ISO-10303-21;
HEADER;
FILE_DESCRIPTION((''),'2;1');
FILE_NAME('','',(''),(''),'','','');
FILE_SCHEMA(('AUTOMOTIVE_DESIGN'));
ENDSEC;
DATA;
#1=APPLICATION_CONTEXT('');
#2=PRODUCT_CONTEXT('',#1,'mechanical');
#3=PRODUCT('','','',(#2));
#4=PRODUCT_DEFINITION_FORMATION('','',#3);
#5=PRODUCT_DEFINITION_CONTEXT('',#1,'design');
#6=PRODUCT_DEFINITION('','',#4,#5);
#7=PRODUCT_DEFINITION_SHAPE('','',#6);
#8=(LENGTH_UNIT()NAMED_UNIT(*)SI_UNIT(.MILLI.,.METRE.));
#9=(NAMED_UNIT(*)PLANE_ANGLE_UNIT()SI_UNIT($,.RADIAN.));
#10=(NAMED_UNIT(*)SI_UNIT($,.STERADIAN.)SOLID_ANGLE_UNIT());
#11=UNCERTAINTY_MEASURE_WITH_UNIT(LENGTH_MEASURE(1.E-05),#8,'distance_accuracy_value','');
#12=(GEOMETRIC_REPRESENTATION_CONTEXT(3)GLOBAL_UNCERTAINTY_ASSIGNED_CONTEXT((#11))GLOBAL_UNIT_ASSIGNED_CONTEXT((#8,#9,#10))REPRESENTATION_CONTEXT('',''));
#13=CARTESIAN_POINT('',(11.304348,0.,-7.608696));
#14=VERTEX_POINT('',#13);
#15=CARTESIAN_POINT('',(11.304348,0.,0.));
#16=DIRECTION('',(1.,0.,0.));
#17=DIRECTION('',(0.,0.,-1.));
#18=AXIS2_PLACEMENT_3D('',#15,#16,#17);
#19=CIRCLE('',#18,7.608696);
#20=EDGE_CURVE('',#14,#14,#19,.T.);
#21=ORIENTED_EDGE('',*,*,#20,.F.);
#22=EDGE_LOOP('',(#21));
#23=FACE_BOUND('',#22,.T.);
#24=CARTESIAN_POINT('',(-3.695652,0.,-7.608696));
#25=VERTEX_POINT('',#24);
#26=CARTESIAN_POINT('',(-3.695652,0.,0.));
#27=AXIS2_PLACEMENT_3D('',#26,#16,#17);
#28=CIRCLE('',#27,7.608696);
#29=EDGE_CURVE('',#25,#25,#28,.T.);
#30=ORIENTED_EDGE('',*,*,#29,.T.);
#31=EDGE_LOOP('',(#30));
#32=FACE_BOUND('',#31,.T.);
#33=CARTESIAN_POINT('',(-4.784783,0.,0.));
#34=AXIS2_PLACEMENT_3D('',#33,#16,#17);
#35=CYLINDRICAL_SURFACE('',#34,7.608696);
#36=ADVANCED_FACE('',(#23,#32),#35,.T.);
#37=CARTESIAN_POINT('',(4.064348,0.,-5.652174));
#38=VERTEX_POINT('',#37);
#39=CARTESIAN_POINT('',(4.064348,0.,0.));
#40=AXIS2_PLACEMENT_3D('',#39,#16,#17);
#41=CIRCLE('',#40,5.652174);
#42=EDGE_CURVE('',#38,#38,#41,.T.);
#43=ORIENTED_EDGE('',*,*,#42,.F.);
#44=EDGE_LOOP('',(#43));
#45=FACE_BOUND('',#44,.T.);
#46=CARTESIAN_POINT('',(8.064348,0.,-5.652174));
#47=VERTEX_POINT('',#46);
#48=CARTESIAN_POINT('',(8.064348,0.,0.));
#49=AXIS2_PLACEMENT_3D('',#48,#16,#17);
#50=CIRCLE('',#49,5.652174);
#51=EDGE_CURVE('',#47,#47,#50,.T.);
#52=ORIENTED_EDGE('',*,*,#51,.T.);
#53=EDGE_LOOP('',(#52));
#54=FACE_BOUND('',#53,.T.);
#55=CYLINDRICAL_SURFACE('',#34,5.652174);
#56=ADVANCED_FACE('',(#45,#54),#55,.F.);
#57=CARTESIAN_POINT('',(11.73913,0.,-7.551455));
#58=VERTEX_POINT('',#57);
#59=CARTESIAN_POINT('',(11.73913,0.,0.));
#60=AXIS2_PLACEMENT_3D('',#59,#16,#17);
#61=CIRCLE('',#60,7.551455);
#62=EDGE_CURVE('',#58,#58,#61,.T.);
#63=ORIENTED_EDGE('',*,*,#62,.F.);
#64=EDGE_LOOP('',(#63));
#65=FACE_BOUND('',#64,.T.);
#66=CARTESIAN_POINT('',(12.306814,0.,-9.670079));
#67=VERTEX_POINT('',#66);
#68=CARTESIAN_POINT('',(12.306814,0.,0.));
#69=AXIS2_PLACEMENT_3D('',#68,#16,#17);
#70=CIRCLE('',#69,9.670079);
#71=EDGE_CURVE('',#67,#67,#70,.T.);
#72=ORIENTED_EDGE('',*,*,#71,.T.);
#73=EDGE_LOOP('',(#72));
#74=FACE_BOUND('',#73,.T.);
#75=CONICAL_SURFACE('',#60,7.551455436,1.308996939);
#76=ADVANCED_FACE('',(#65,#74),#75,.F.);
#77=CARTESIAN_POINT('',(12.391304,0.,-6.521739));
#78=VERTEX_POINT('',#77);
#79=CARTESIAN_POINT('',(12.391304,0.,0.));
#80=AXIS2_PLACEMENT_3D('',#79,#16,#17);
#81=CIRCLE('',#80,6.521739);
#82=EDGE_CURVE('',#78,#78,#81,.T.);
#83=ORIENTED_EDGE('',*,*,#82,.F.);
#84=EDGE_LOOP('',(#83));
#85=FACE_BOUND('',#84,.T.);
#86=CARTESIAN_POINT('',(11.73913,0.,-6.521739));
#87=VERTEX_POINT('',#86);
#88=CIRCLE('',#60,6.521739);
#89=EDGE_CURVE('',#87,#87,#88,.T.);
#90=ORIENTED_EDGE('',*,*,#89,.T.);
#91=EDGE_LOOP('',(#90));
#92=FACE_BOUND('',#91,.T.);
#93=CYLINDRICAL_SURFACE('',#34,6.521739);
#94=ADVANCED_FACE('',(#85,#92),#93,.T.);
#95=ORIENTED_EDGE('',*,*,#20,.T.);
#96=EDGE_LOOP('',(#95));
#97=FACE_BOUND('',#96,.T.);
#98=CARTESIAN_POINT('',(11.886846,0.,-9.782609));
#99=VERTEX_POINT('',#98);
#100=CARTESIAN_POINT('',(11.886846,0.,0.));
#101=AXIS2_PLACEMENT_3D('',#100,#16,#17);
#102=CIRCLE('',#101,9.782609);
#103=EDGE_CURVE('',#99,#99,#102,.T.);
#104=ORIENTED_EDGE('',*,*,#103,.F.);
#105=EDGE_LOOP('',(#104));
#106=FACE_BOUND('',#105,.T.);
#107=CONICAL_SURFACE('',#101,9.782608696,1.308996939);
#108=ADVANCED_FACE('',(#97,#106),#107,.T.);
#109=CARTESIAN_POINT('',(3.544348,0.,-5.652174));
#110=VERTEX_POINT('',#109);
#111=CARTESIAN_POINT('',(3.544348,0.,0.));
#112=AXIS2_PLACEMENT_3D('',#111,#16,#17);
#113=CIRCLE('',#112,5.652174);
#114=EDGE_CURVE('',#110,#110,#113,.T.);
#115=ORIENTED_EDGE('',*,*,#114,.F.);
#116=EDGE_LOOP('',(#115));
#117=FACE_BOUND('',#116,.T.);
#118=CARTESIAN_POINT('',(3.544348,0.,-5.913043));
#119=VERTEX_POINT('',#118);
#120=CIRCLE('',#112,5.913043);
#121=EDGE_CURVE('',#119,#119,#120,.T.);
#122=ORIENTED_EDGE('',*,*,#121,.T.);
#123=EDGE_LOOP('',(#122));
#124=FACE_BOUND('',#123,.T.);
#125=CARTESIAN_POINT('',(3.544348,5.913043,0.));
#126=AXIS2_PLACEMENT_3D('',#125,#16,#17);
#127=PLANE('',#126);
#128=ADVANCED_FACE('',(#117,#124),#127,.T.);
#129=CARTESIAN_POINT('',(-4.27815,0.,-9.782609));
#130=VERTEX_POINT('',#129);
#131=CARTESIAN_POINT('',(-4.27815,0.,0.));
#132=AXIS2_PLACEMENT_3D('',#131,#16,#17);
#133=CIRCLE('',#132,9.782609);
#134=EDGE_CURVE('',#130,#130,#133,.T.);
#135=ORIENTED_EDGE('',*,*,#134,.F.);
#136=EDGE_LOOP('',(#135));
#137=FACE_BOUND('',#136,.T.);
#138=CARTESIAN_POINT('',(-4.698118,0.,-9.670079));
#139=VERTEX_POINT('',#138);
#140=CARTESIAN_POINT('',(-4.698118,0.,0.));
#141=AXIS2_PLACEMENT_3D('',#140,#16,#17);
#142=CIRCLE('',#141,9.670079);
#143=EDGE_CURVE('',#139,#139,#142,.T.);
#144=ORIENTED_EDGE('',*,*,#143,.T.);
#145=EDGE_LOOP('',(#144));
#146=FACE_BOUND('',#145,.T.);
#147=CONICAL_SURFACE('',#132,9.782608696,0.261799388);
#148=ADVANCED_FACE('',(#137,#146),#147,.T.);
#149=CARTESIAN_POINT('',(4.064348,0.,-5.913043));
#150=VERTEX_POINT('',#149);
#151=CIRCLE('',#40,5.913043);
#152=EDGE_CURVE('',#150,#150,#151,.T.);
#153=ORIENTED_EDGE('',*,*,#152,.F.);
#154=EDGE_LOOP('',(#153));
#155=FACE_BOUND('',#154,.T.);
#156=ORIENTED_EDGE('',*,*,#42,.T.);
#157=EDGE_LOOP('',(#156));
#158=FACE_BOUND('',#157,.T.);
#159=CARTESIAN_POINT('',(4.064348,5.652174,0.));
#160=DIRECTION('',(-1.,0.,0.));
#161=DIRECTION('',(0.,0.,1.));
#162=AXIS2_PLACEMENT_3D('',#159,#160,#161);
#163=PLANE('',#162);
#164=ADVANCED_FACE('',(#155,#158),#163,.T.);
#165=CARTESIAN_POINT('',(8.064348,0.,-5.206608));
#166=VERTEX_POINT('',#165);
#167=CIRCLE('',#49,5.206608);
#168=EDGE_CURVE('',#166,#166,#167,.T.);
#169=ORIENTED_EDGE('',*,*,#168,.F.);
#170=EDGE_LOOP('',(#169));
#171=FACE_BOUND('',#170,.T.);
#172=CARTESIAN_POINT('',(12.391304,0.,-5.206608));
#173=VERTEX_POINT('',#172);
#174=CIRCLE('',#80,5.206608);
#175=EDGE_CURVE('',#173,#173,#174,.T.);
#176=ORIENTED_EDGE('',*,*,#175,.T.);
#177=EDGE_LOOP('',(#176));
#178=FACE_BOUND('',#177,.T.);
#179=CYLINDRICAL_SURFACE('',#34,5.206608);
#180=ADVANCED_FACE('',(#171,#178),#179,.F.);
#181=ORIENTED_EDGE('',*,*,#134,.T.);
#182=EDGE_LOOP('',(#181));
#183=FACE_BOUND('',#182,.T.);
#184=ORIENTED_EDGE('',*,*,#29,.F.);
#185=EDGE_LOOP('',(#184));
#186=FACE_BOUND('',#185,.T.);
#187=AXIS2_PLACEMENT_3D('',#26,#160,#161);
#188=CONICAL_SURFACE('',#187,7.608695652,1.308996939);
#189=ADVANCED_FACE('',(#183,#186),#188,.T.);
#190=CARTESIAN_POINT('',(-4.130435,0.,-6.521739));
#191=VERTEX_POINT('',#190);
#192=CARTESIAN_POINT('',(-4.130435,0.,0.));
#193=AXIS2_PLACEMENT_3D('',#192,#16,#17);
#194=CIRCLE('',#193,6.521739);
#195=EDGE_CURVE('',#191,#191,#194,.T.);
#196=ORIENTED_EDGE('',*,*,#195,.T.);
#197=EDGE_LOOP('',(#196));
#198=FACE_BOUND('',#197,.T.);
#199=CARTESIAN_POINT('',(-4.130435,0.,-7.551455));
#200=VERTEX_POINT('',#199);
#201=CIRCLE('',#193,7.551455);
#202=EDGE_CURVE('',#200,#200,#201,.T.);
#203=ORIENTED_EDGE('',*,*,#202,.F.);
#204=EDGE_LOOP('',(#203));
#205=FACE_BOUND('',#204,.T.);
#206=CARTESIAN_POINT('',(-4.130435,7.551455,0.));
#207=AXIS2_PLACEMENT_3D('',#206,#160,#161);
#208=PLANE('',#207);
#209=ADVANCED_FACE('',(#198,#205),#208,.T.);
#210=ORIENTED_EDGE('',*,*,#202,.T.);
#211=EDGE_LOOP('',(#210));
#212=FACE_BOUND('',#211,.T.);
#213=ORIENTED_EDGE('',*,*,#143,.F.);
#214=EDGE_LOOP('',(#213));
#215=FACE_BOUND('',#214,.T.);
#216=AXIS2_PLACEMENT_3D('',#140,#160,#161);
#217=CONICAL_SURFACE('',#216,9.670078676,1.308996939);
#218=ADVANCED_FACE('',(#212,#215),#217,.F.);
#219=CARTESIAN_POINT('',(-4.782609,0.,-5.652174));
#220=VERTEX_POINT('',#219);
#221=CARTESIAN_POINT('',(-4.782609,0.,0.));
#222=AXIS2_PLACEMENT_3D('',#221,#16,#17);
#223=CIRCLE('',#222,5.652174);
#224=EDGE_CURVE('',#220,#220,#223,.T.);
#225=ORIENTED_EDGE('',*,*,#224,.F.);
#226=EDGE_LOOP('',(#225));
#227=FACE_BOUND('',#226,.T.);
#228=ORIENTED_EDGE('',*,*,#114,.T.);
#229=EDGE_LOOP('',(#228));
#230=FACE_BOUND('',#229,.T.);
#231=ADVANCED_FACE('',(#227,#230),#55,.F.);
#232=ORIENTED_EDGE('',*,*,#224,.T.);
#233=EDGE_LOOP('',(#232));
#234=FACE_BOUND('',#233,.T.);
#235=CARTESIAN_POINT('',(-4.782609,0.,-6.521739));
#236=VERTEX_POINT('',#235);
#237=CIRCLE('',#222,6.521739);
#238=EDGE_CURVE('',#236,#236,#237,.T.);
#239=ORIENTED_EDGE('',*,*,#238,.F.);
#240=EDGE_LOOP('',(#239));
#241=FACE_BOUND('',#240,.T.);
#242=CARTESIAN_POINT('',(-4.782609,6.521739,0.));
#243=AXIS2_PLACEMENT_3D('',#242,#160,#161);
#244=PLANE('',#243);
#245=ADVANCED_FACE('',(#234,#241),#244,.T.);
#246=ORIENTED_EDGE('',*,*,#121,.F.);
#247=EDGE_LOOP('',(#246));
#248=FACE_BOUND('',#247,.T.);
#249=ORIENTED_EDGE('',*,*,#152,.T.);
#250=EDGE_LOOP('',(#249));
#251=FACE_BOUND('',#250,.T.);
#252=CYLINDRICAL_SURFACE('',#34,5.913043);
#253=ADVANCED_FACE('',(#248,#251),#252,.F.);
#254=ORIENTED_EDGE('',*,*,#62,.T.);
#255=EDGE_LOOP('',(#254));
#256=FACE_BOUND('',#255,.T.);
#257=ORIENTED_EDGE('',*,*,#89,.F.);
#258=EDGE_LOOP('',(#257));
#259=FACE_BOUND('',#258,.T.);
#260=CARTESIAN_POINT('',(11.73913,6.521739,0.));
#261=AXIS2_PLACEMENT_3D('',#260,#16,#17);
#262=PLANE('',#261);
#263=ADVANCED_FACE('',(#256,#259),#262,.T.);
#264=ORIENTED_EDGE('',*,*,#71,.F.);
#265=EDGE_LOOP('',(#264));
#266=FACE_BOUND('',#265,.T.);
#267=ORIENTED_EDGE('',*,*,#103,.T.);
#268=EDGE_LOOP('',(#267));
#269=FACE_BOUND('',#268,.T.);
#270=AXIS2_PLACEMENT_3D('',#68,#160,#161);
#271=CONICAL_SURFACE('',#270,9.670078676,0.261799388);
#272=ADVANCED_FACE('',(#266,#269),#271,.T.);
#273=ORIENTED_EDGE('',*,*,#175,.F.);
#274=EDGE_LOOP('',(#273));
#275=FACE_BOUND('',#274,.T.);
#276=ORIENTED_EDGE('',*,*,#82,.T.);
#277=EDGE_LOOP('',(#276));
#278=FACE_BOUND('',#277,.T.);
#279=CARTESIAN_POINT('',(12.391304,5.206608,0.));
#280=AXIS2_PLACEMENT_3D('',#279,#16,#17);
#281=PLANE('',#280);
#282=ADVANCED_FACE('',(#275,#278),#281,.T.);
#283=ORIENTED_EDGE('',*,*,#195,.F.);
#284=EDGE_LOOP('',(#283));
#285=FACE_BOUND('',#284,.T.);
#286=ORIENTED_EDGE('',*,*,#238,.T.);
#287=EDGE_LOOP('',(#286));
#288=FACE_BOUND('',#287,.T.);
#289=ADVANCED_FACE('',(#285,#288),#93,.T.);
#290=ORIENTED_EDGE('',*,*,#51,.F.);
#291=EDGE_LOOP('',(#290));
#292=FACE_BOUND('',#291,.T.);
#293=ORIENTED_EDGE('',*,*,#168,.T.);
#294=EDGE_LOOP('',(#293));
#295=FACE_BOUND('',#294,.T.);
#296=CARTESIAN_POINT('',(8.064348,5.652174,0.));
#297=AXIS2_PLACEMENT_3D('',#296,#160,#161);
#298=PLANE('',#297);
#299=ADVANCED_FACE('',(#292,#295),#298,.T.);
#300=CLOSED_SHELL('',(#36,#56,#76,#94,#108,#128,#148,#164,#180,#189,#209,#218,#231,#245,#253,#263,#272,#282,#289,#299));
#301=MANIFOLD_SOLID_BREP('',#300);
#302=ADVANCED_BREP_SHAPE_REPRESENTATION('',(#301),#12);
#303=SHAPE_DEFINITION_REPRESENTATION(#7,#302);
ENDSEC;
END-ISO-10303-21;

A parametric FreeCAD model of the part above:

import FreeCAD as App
import Part
import Sketcher
Q = App.Units.Quantity


def add_polygon(sketch, points):
    """Adds a closed chain of lines whose ends are joined by coincident constraints."""
    first, n = sketch.GeometryCount, len(points)
    for a, b in zip(points, points[1:] + points[:1]):
        sketch.addGeometry(Part.LineSegment(App.Vector(*a, 0), App.Vector(*b, 0)), False)
    for i in range(n):
        sketch.addConstraint(Sketcher.Constraint("Coincident", first + i, 2, first + (i + 1) % n, 1))

doc = App.newDocument("Part")
params = doc.addObject("Spreadsheet::Sheet", "Params")
for row, (alias, value) in enumerate([
    ("sketch1_width", "4 mm"),
    ("sketch1_width2", "15 mm"),
    ("sketch1_width3", "0.52 mm"),
    ("revolution_angle", "360 deg"),
], start=1):
    params.set(f"A{row}", alias)
    params.set(f"B{row}", "=" + value)
    params.setAlias(f"B{row}", alias)

body = doc.addObject("PartDesign::Body", "Body")

# Sketch on XY plane
sketch1 = body.newObject("Sketcher::SketchObject", "Sketch")
sketch1.AttachmentSupport = (doc.getObject("XY_Plane"), [""])
sketch1.MapMode = "FlatFace"
add_polygon(sketch1, [(-4.13, 6.52), (-4.78, 6.52), (-4.78, 5.65), (3.54, 5.65), (3.54, 5.91), (4.06, 5.91), (4.06, 5.65), (8.06, 5.65), (8.06, 5.21), (12.39, 5.21), (12.39, 6.52), (11.74, 6.52), (11.74, 7.55), (12.31, 9.67), (11.89, 9.78), (11.3, 7.61), (-3.7, 7.61), (-4.28, 9.78), (-4.7, 9.67), (-4.13, 7.55)])  # lines 0-19
sketch1.addConstraint(Sketcher.Constraint("Horizontal", 0))
sketch1.addConstraint(Sketcher.Constraint("Vertical", 1))
sketch1.addConstraint(Sketcher.Constraint("Horizontal", 2))
sketch1.addConstraint(Sketcher.Constraint("Vertical", 3))
sketch1.addConstraint(Sketcher.Constraint("Horizontal", 4))
sketch1.addConstraint(Sketcher.Constraint("Vertical", 5))
sketch1.addConstraint(Sketcher.Constraint("Horizontal", 6))
sketch1.addConstraint(Sketcher.Constraint("Vertical", 7))
sketch1.addConstraint(Sketcher.Constraint("Horizontal", 8))
sketch1.addConstraint(Sketcher.Constraint("Vertical", 9))
sketch1.addConstraint(Sketcher.Constraint("Horizontal", 10))
sketch1.addConstraint(Sketcher.Constraint("Vertical", 11))
sketch1.addConstraint(Sketcher.Constraint("Horizontal", 15))
sketch1.addConstraint(Sketcher.Constraint("Vertical", 19))
sketch1.addConstraint(Sketcher.Constraint("Perpendicular", 12, 13))
sketch1.addConstraint(Sketcher.Constraint("Perpendicular", 13, 14))
sketch1.addConstraint(Sketcher.Constraint("Perpendicular", 16, 17))
sketch1.addConstraint(Sketcher.Constraint("Perpendicular", 17, 18))
sketch1.addConstraint(Sketcher.Constraint("Horizontal", 2, 2, 5, 2))
sketch1.addConstraint(Sketcher.Constraint("Horizontal", 0, 2, 9, 2))
sketch1.addConstraint(Sketcher.Constraint("Horizontal", 13, 2, 16, 2))
sketch1.addConstraint(Sketcher.Constraint("Horizontal", 12, 2, 17, 2))
sketch1.addConstraint(Sketcher.Constraint("Horizontal", 11, 2, 18, 2))
sketch1.addConstraint(Sketcher.Constraint("Equal", 0, 10))
sketch1.addConstraint(Sketcher.Constraint("Equal", 14, 16))
sketch1.addConstraint(Sketcher.Constraint("DistanceX", 6, 1, 6, 2, Q("4 mm")))
sketch1.addConstraint(Sketcher.Constraint("DistanceX", 15, 2, 15, 1, Q("15 mm")))
sketch1.addConstraint(Sketcher.Constraint("Angle", 12, Q("75 deg")))
sketch1.addConstraint(Sketcher.Constraint("DistanceX", 4, 1, 4, 2, Q("0.52 mm")))
sketch1.addConstraint(Sketcher.Constraint("DistanceX", 15, 2, 3, 2, Q("7.24 mm")))
sketch1.addConstraint(Sketcher.Constraint("DistanceY", 8, 2, 13, 2, Q("4.576 mm")))
sketch1.addConstraint(Sketcher.Constraint("Distance", 14, Q("2.2506 mm")))
sketch1.addConstraint(Sketcher.Constraint("DistanceY", 3, 1, 3, 2, Q("0.26087 mm")))
sketch1.addConstraint(Sketcher.Constraint("DistanceY", 9, 1, 9, 2, Q("1.315131 mm")))
sketch1.addConstraint(Sketcher.Constraint("Distance", 12, Q("2.19336 mm")))
sketch1.addConstraint(Sketcher.Constraint("DistanceX", 0, 2, 0, 1, Q("0.652174 mm")))
sketch1.addConstraint(Sketcher.Constraint("DistanceX", 2, 1, 2, 2, Q("8.326957 mm")))
sketch1.addConstraint(Sketcher.Constraint("DistanceY", 1, 2, 1, 1, Q("0.869565 mm")))
sketch1.addConstraint(Sketcher.Constraint("DistanceX", 0, 2, -1, 1, Q("4.782609 mm")))
sketch1.addConstraint(Sketcher.Constraint("DistanceY", -1, 1, 0, 2, Q("6.521739 mm")))
sketch1.setExpression("Constraints[45]", "Params.sketch1_width")
sketch1.setExpression("Constraints[46]", "Params.sketch1_width2")
sketch1.setExpression("Constraints[48]", "Params.sketch1_width3")
revolution = body.newObject("PartDesign::Revolution", "Revolution")
revolution.Profile = sketch1
revolution.ReferenceAxis = (sketch1, ["H_Axis"])
revolution.setExpression("Angle", "Params.revolution_angle")

doc.recompute()
